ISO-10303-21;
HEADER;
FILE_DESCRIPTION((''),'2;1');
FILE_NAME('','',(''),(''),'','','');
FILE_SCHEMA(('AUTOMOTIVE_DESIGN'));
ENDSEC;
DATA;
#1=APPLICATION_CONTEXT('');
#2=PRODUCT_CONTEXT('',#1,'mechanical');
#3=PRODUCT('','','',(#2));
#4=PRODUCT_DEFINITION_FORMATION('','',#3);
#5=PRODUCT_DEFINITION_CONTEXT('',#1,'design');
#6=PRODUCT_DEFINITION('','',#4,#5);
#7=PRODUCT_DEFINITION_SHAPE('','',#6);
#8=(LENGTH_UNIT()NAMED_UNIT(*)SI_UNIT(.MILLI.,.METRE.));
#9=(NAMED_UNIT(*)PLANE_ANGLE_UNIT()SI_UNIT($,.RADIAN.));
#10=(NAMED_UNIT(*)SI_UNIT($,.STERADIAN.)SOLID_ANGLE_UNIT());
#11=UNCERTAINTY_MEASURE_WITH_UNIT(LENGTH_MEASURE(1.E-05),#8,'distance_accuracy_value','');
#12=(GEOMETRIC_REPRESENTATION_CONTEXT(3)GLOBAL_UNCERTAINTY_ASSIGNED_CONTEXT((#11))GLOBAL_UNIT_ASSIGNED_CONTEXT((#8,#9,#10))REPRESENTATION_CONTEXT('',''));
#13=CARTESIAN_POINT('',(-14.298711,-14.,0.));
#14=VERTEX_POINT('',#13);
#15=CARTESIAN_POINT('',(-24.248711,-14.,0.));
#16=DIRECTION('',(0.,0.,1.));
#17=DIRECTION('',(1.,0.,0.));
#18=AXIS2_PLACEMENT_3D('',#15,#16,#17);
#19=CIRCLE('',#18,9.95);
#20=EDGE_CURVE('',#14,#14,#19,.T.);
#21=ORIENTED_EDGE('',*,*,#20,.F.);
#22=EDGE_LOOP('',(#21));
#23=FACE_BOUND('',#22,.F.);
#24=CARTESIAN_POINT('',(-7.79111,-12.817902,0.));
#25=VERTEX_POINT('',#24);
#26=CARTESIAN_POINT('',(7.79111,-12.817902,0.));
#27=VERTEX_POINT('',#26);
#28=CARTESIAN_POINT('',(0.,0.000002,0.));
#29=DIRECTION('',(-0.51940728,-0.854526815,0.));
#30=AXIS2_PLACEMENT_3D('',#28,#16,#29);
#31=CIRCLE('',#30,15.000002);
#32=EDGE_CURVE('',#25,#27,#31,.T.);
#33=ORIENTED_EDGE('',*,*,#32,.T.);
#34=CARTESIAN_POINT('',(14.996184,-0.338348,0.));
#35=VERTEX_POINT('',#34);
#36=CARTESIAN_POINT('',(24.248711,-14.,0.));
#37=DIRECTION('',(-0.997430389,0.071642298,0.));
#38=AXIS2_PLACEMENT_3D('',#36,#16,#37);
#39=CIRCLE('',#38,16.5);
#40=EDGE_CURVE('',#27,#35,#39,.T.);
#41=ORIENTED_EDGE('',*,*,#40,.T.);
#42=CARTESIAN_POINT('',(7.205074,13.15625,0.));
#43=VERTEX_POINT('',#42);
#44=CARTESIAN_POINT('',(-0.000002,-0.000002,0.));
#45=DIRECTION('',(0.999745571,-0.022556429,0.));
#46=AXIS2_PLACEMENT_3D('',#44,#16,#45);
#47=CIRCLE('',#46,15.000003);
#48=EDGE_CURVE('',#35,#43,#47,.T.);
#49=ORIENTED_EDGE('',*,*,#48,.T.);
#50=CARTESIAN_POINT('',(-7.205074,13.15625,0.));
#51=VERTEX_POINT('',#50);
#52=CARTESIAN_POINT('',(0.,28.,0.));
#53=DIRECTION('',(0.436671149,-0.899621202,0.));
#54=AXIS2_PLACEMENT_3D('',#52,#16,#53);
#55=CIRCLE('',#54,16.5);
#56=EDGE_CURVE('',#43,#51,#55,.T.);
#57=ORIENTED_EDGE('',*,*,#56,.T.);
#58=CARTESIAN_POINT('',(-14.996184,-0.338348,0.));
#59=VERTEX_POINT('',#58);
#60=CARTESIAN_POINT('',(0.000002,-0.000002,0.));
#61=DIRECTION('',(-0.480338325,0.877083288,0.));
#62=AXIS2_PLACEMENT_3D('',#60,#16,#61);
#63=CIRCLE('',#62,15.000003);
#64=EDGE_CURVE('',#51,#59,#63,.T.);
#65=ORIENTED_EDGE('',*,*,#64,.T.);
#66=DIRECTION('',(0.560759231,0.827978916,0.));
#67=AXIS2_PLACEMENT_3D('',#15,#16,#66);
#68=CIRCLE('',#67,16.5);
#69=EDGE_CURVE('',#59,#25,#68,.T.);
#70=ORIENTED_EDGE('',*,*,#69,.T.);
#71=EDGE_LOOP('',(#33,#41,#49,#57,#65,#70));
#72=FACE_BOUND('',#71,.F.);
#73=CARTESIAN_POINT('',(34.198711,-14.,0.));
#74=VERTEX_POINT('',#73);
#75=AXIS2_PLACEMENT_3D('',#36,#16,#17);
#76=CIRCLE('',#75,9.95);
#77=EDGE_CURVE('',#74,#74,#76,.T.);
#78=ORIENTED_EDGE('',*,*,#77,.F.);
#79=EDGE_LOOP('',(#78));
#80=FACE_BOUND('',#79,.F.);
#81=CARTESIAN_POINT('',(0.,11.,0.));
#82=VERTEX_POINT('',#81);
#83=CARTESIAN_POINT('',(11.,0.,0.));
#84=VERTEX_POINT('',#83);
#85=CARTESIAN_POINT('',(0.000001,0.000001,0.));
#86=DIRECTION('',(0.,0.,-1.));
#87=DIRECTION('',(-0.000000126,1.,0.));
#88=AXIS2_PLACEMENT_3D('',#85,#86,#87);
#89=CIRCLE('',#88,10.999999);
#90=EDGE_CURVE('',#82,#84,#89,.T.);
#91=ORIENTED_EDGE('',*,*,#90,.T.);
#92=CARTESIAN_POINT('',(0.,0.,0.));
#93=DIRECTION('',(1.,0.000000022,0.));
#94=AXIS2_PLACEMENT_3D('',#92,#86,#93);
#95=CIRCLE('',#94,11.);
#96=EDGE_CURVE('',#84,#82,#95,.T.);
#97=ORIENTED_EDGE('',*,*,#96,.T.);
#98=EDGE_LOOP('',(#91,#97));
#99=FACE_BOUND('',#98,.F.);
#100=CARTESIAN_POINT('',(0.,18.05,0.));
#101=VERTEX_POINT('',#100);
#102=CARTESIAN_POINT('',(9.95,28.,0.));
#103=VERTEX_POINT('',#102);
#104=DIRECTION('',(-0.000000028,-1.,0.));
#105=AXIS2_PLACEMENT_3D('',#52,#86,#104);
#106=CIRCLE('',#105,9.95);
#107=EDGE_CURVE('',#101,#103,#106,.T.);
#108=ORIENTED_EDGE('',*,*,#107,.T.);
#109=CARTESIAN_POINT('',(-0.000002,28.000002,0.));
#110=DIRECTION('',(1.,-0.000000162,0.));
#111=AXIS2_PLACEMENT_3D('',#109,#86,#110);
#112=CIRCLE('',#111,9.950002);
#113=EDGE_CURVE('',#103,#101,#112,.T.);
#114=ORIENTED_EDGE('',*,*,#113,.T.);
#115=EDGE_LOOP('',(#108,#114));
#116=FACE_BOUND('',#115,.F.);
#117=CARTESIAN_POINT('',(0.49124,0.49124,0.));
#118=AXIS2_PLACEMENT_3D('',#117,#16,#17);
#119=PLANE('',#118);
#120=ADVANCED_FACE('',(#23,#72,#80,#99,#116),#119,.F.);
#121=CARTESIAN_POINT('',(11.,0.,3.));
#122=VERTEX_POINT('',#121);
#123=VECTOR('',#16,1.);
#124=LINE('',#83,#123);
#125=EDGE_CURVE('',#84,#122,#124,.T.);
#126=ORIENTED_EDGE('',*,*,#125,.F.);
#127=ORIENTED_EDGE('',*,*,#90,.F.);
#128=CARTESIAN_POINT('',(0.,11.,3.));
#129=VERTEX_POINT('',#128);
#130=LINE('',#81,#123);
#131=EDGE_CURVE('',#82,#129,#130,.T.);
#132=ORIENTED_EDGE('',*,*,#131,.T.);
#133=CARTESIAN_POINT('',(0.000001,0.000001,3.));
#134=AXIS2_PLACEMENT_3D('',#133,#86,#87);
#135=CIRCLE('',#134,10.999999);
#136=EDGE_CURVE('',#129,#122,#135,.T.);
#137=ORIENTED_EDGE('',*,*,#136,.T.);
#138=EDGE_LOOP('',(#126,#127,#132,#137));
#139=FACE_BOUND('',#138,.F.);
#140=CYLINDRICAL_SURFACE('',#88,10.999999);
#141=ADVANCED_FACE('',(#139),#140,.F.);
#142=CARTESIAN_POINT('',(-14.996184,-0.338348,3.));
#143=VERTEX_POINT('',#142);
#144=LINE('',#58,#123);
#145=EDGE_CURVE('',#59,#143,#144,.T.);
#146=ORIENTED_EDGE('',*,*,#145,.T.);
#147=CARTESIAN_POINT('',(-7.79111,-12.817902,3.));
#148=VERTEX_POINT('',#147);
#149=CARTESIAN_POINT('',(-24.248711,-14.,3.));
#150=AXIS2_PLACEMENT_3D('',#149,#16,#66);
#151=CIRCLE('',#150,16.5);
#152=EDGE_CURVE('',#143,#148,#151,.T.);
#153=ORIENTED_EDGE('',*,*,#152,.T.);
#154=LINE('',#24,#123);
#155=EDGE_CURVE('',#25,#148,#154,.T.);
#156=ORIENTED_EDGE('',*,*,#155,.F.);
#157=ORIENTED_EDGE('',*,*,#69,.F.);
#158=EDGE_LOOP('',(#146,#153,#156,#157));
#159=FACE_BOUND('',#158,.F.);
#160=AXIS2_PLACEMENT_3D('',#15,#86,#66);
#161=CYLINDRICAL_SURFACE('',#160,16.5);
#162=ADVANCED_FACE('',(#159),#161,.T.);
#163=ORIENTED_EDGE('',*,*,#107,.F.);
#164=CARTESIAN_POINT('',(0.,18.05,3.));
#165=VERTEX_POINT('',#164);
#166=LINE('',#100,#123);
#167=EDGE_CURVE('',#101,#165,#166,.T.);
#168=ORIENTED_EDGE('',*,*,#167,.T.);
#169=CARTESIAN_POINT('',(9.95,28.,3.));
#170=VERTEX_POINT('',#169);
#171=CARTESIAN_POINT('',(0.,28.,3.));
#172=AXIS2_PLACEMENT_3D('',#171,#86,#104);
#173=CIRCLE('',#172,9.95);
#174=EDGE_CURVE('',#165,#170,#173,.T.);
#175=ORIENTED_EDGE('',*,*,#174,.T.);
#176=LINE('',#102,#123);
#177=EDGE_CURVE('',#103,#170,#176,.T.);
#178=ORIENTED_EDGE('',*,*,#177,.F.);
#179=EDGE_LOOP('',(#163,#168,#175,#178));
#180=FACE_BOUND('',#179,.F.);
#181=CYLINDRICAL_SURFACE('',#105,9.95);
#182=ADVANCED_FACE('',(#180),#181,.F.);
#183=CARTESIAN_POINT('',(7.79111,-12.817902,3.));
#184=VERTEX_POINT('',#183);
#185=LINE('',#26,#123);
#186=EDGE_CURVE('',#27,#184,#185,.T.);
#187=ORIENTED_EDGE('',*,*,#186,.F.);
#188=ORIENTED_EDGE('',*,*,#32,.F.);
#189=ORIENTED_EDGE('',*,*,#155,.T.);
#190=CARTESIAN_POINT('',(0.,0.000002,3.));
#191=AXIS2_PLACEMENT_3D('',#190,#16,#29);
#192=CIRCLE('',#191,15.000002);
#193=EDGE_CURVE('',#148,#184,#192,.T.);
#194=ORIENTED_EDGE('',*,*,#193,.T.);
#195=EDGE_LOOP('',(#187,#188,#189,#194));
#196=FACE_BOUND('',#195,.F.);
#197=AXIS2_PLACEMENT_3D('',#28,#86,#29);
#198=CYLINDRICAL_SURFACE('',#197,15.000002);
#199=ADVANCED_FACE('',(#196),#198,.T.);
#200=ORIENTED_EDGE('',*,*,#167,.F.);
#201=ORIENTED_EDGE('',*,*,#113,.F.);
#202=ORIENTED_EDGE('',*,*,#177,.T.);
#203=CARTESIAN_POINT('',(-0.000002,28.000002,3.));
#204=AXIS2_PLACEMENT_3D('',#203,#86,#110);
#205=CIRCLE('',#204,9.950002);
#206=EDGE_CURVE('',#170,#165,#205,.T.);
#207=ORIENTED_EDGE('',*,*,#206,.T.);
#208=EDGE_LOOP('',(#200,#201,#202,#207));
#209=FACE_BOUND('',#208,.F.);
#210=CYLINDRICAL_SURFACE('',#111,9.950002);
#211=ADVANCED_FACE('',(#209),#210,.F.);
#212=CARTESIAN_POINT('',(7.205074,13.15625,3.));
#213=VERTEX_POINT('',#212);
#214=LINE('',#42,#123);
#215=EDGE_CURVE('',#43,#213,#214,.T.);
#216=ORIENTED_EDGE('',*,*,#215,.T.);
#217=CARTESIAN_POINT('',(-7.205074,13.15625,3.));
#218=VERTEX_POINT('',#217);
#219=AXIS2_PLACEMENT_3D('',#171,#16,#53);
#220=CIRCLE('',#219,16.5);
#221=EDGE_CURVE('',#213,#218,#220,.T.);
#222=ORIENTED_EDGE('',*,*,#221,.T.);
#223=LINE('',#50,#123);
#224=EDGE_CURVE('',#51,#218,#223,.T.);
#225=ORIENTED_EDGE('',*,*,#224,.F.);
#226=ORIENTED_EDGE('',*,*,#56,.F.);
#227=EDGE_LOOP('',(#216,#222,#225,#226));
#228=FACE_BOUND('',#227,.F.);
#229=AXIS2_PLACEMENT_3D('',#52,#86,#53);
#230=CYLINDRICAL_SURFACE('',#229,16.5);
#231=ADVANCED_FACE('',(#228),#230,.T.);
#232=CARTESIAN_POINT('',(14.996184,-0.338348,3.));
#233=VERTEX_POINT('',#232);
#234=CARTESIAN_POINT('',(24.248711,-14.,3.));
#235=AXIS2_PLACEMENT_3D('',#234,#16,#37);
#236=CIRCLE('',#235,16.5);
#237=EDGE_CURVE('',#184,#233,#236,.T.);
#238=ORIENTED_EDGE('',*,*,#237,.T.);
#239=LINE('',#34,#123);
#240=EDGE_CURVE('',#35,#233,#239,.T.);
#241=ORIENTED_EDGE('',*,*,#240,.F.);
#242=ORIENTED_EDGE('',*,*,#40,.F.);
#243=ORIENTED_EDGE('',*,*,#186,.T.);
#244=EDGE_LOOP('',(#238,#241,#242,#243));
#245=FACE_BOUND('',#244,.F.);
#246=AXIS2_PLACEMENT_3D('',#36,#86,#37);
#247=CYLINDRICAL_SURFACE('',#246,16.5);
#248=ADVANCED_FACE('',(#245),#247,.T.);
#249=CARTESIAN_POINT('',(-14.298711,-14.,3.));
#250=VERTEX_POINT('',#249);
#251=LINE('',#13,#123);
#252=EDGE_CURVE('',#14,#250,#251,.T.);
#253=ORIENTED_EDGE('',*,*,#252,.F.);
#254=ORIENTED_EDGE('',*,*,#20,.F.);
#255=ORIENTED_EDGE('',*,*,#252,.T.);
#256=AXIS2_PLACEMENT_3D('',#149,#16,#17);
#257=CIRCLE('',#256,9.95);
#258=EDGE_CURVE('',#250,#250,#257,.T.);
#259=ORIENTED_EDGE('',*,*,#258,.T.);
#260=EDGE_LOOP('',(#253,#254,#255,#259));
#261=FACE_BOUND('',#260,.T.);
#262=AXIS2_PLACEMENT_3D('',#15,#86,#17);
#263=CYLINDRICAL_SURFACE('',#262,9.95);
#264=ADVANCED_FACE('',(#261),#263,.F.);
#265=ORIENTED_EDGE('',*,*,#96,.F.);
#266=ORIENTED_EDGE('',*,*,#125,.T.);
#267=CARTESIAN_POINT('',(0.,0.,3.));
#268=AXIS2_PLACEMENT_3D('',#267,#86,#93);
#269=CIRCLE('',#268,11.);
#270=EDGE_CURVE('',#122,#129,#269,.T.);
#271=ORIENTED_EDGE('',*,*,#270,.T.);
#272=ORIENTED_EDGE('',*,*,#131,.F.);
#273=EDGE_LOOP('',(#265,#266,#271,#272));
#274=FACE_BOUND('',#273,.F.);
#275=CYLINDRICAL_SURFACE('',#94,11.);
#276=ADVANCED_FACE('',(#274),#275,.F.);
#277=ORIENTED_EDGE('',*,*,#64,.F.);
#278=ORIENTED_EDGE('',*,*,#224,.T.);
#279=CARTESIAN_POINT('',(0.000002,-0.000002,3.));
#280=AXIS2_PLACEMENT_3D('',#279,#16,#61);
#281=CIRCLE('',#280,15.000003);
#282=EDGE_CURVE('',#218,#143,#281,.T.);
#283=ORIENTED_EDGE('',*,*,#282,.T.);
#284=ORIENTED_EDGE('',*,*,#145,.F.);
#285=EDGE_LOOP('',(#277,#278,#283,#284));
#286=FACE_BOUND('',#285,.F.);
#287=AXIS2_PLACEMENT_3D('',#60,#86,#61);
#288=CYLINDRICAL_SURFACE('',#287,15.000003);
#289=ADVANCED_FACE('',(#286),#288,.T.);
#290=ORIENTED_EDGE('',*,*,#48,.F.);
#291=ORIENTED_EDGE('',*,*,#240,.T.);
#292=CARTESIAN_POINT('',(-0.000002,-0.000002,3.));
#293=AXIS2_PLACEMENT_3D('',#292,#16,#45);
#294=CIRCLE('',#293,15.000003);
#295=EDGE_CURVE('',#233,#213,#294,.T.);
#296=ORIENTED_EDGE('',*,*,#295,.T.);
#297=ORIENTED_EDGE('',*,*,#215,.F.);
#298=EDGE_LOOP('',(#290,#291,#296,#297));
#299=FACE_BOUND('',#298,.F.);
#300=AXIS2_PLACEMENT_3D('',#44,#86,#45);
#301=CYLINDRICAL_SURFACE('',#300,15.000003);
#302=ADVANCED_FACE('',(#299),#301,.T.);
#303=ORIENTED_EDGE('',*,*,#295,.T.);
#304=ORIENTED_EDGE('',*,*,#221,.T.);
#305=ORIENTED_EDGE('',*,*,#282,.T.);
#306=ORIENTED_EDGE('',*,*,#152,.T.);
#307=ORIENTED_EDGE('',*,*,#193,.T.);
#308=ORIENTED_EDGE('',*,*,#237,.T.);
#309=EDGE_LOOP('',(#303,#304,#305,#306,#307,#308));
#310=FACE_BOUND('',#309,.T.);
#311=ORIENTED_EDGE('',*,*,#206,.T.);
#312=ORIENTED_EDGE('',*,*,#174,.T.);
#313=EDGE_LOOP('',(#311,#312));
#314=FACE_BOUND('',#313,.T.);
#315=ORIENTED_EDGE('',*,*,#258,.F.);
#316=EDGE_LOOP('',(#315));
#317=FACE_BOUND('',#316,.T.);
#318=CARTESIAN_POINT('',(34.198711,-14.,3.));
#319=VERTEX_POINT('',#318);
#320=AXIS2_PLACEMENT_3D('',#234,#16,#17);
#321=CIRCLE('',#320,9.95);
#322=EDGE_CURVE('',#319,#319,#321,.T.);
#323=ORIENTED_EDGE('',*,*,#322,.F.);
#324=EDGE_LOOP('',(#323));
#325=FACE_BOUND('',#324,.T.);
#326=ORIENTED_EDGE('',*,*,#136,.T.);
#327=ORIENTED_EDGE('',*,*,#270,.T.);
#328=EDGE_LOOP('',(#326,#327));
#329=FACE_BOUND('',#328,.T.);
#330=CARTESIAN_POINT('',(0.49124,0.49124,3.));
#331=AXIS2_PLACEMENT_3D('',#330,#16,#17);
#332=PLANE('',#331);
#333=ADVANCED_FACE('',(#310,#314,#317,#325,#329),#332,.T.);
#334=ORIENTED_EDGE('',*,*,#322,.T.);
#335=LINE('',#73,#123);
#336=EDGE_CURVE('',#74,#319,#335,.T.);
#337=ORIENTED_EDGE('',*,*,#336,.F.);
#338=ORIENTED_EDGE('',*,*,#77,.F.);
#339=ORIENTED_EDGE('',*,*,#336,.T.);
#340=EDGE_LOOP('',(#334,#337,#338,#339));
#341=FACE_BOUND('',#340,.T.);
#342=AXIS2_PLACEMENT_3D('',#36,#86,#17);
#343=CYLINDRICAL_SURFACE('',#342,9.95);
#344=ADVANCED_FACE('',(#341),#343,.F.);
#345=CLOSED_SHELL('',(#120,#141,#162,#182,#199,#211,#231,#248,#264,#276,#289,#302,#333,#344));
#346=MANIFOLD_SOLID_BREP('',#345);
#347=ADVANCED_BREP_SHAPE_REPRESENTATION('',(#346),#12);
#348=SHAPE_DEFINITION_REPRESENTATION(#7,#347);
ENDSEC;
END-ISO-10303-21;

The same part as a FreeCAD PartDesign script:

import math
import FreeCAD as App
import Part
import Sketcher
from FreeCAD import Vector

doc = App.newDocument("Part")
params = doc.addObject("Spreadsheet::Sheet", "Params")
for row, (alias, value) in enumerate([
    ("sketch1_radius", "15.000002 mm"),
    ("sketch1_radius2", "11 mm"),
    ("sketch1_diameter", "19.9 mm"),
    ("sketch1_radius3", "16.5 mm"),
    ("pad1_length", "3 mm"),
], start=1):
    params.set(f"A{row}", alias)
    params.set(f"B{row}", "=" + value)
    params.setAlias(f"B{row}", alias)

body = doc.addObject("PartDesign::Body", "Body")

# Sketch on XY plane
sketch1 = body.newObject("Sketcher::SketchObject", "Sketch")
sketch1.AttachmentSupport = (doc.getObject("XY_Plane"), [""])
sketch1.MapMode = "FlatFace"
sketch1.addGeometry([
    Part.ArcOfCircle(Part.Circle(Vector(0, 28, 0), Vector(0, 0, 1), 17), math.radians(-64), math.radians(244)),  # 0
    Part.ArcOfCircle(Part.Circle(Vector(0, 0, 0), Vector(0, 0, 1), 15), math.radians(119), math.radians(181)),  # 1
    Part.ArcOfCircle(Part.Circle(Vector(-24, -14, 0), Vector(0, 0, 1), 16), math.radians(56), math.radians(364)),  # 2
    Part.ArcOfCircle(Part.Circle(Vector(0, 0, 0), Vector(0, 0, 1), 15), math.radians(-121), math.radians(-59)),  # 3
    Part.ArcOfCircle(Part.Circle(Vector(24, -14, 0), Vector(0, 0, 1), 16), math.radians(176), math.radians(484)),  # 4
    Part.ArcOfCircle(Part.Circle(Vector(0, 0, 0), Vector(0, 0, 1), 15), math.radians(-1), math.radians(61)),  # 5
    Part.Circle(Vector(-24, -14, 0), Vector(0, 0, 1), 10),  # 6
    Part.ArcOfCircle(Part.Circle(Vector(0, 0, 0), Vector(0, 0, 1), 11), math.radians(90), math.radians(360)),  # 7
    Part.ArcOfCircle(Part.Circle(Vector(0, 0, 0), Vector(0, 0, 1), 11), math.radians(0), math.radians(90)),  # 8
    Part.Circle(Vector(24, -14, 0), Vector(0, 0, 1), 10),  # 9
    Part.ArcOfCircle(Part.Circle(Vector(0, 28, 0), Vector(0, 0, 1), 10), math.radians(0), math.radians(270)),  # 10
    Part.ArcOfCircle(Part.Circle(Vector(0, 28, 0), Vector(0, 0, 1), 10), math.radians(-90), math.radians(0)),  # 11
], False)
sketch1.addConstraint([
    Sketcher.Constraint("Coincident", 0, 2, 1, 1),
    Sketcher.Constraint("Coincident", 1, 2, 2, 1),
    Sketcher.Constraint("Coincident", 2, 2, 3, 1),
    Sketcher.Constraint("Coincident", 3, 2, 4, 1),
    Sketcher.Constraint("Coincident", 4, 2, 5, 1),
    Sketcher.Constraint("Coincident", 5, 2, 0, 1),
    Sketcher.Constraint("Tangent", 7, 1, 8, 2),
    Sketcher.Constraint("Coincident", 8, 1, 7, 2),
    Sketcher.Constraint("Tangent", 10, 1, 11, 2),
    Sketcher.Constraint("Coincident", 11, 1, 10, 2),
    Sketcher.Constraint("Coincident", 1, 3, -1, 1),
    Sketcher.Constraint("Coincident", 3, 3, -1, 1),
    Sketcher.Constraint("Coincident", 5, 3, -1, 1),
    Sketcher.Constraint("Coincident", 7, 3, -1, 1),
    Sketcher.Constraint("Coincident", 6, 3, 2, 3),
    Sketcher.Constraint("Coincident", 9, 3, 4, 3),
    Sketcher.Constraint("Coincident", 10, 3, 0, 3),
    Sketcher.Constraint("Equal", 0, 2),
    Sketcher.Constraint("Equal", 1, 3),
    Sketcher.Constraint("Equal", 2, 4),
    Sketcher.Constraint("Equal", 3, 5),
    Sketcher.Constraint("Equal", 6, 9),
    Sketcher.Constraint("Equal", 9, 10),
    Sketcher.Constraint("Symmetric", 2, 3, 4, 3, -2),
    Sketcher.Constraint("PointOnObject", 0, 3, -2),
    Sketcher.Constraint("PointOnObject", 7, 1, -2),
    Sketcher.Constraint("PointOnObject", 8, 1, -1),
    Sketcher.Constraint("PointOnObject", 11, 1, -2),
    Sketcher.Constraint("Horizontal", 11, 3, 10, 1),
    Sketcher.Constraint("Radius", 3, 15.000002),
    Sketcher.Constraint("Radius", 7, 11.0),
    Sketcher.Constraint("Diameter", 6, 19.9),
    Sketcher.Constraint("Radius", 0, 16.5),
    Sketcher.Constraint("DistanceY", -1, 1, 0, 3, 28.0),
    Sketcher.Constraint("DistanceY", 2, 3, -1, 1, 14.0),
    Sketcher.Constraint("DistanceY", 2, 2, -1, 1, 12.817902),
])
sketch1.setExpression("Constraints[29]", "Params.sketch1_radius")
sketch1.setExpression("Constraints[30]", "Params.sketch1_radius2")
sketch1.setExpression("Constraints[31]", "Params.sketch1_diameter")
sketch1.setExpression("Constraints[32]", "Params.sketch1_radius3")
pad1 = body.newObject("PartDesign::Pad", "Pad")
pad1.Profile = sketch1
pad1.setExpression("Length", "Params.pad1_length")

doc.recompute()
